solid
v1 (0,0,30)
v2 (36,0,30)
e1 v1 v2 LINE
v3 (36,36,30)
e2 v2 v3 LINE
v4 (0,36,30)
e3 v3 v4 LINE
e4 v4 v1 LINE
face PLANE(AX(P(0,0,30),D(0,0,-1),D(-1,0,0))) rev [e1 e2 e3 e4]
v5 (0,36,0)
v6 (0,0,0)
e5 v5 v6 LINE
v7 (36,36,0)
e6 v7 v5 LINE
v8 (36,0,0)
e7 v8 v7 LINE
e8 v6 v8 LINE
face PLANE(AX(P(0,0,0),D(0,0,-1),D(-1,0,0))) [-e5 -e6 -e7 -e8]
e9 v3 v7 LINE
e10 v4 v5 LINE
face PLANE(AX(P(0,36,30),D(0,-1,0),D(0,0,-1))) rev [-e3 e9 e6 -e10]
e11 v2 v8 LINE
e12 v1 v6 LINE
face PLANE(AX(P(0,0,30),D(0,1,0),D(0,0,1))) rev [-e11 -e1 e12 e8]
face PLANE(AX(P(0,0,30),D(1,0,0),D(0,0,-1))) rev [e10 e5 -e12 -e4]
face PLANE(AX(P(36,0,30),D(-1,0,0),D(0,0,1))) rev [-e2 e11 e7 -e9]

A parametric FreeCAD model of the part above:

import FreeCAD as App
import Part
import Sketcher

V = App.Vector


def add_polygon(sketch, points):
    """Adds a closed chain of lines whose ends are joined by coincident constraints."""
    first, n = sketch.GeometryCount, len(points)
    for a, b in zip(points, points[1:] + points[:1]):
        sketch.addGeometry(Part.LineSegment(App.Vector(*a, 0), App.Vector(*b, 0)), False)
    for i in range(n):
        sketch.addConstraint(Sketcher.Constraint("Coincident", first + i, 2, first + (i + 1) % n, 1))

doc = App.newDocument("Part")
body = doc.addObject("PartDesign::Body", "Body")

# Sketch on XY plane
sketch1 = body.newObject("Sketcher::SketchObject", "Sketch")
sketch1.AttachmentSupport = (doc.getObject("XY_Plane"), [""])
sketch1.MapMode = "FlatFace"
add_polygon(sketch1, [(0, 36), (0, 0), (36, 0), (36, 36)])  # lines 0-3
sketch1.addConstraint([
    Sketcher.Constraint("Vertical", 0),
    Sketcher.Constraint("Horizontal", 1),
    Sketcher.Constraint("Vertical", 2),
    Sketcher.Constraint("Horizontal", 3),
    Sketcher.Constraint("Coincident", 0, 2, -1, 1),
    Sketcher.Constraint("Equal", 3, 0),
    Sketcher.Constraint("DistanceX", 1, 1, 1, 2, 36.0),
])
pad1 = body.newObject("PartDesign::Pad", "Pad")
pad1.Profile = sketch1
pad1.Length = 30

doc.recompute()
